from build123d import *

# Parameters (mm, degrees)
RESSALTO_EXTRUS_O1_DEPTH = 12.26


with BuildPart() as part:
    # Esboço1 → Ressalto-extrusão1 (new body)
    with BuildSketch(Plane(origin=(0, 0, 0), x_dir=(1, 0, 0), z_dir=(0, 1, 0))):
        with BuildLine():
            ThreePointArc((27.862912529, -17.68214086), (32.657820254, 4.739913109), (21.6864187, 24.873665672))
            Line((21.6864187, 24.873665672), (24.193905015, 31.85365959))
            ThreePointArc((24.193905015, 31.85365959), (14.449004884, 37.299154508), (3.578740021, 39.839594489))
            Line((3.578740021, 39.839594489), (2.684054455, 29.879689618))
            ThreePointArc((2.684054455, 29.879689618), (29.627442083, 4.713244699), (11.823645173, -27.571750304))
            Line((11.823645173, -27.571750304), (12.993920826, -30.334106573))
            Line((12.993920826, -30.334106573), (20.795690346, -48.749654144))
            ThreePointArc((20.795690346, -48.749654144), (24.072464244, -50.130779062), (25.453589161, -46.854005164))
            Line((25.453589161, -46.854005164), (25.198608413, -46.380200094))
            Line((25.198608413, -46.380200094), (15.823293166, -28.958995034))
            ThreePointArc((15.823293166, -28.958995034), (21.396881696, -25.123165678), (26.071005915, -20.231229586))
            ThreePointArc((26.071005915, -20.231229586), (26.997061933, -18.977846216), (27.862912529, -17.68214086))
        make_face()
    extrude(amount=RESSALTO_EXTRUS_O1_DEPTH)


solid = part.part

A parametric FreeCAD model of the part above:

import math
import FreeCAD as App
import Part
import Sketcher
Q = App.Units.Quantity

doc = App.newDocument("Part")
body = doc.addObject("PartDesign::Body", "Body")

# Sketch on XZ plane
sketch1 = body.newObject("Sketcher::SketchObject", "Sketch")
sketch1.AttachmentSupport = (doc.getObject("XZ_Plane"), [""])
sketch1.MapMode = "FlatFace"
sketch1.addGeometry([
    Part.ArcOfCircle(Part.Circle(App.Vector(0, 0, 0), App.Vector(0, 0, 1), 33), math.radians(-48.916044), math.radians(32.399705)),  # 0
    Part.LineSegment(App.Vector(21.686419, -24.873666, 0), App.Vector(24.193905, -31.85366, 0)),  # 1
    Part.ArcOfCircle(Part.Circle(App.Vector(0, 0, 0), App.Vector(0, 0, 1), 40.000008), math.radians(-84.86697), math.radians(-52.782131)),  # 2
    Part.LineSegment(App.Vector(3.57874, -39.839594, 0), App.Vector(2.684054, -29.87969, 0)),  # 3
    Part.ArcOfCircle(Part.Circle(App.Vector(0, 0, 0), App.Vector(0, 0, 1), 30), math.radians(-84.86697), math.radians(66.788804)),  # 4
    Part.LineSegment(App.Vector(11.823645, 27.57175, 0), App.Vector(12.993921, 30.334107, 0)),  # 5
    Part.LineSegment(App.Vector(12.993921, 30.334107, 0), App.Vector(20.79569, 48.749654, 0)),  # 6
    Part.ArcOfCircle(Part.Circle(App.Vector(23.12464, 47.80183, 0), App.Vector(0, 0, 1), 2.514434), math.radians(-22.145101), math.radians(157.854899)),  # 7
    Part.LineSegment(App.Vector(25.453589, 46.854005, 0), App.Vector(25.198608, 46.3802, 0)),  # 8
    Part.LineSegment(App.Vector(25.198608, 46.3802, 0), App.Vector(15.823293, 28.958995, 0)),  # 9
    Part.ArcOfCircle(Part.Circle(App.Vector(0, 0, 0), App.Vector(0, 0, 1), 33), math.radians(37.81164), math.radians(61.347658)),  # 10
    Part.ArcOfCircle(Part.Circle(App.Vector(0, 0, 0), App.Vector(0, 0, 1), 33), math.radians(32.399705), math.radians(37.81164)),  # 11
], False)
sketch1.addConstraint([
    Sketcher.Constraint("Coincident", 0, 1, 1, 1),
    Sketcher.Constraint("Coincident", 1, 2, 2, 2),
    Sketcher.Constraint("Coincident", 2, 1, 3, 1),
    Sketcher.Constraint("Coincident", 3, 2, 4, 1),
    Sketcher.Constraint("Coincident", 4, 2, 5, 1),
    Sketcher.Constraint("Coincident", 5, 2, 6, 1),
    Sketcher.Constraint("Coincident", 6, 2, 7, 2),
    Sketcher.Constraint("Coincident", 7, 1, 8, 1),
    Sketcher.Constraint("Coincident", 8, 2, 9, 1),
    Sketcher.Constraint("Coincident", 9, 2, 10, 2),
    Sketcher.Constraint("Tangent", 10, 1, 11, 2),
    Sketcher.Constraint("Tangent", 11, 1, 0, 2),
    Sketcher.Constraint("Coincident", 0, 3, -1, 1),
    Sketcher.Constraint("Coincident", 2, 3, -1, 1),
    Sketcher.Constraint("Coincident", 4, 3, -1, 1),
    Sketcher.Constraint("Coincident", 10, 3, -1, 1),
    Sketcher.Constraint("Parallel", 5, 6),
    Sketcher.Constraint("Parallel", 8, 9),
    Sketcher.Constraint("Radius", 0, 33.0),
    Sketcher.Constraint("Radius", 4, 30.0),
    Sketcher.Constraint("Distance", 6, 20.0),
    Sketcher.Constraint("Angle", 5, Q("67.039995 deg")),
    Sketcher.Constraint("Radius", 2, 40.000008),
    Sketcher.Constraint("Radius", 7, 2.514434),
    Sketcher.Constraint("DistanceY", -1, 1, 8, 2, 46.3802),
    Sketcher.Constraint("DistanceX", 6, 2, 7, 1, 4.657899),
    Sketcher.Constraint("Distance", 8, 0.538058),
    Sketcher.Constraint("DistanceX", -1, 1, 7, 3, 23.12464),
    Sketcher.Constraint("DistanceY", -1, 1, 7, 3, 47.80183),
    Sketcher.Constraint("DistanceX", -1, 1, 0, 1, 21.686419),
    Sketcher.Constraint("DistanceY", 1, 2, -1, 1, 31.85366),
    Sketcher.Constraint("DistanceX", -1, 1, 2, 1, 3.57874),
    Sketcher.Constraint("DistanceY", 3, 2, -1, 1, 29.87969),
    Sketcher.Constraint("DistanceX", -1, 1, 5, 2, 12.993921),
    Sketcher.Constraint("DistanceY", -1, 1, 10, 1, 20.23123),
    Sketcher.Constraint("DistanceY", -1, 1, 11, 1, 17.682141),
])
pad1 = body.newObject("PartDesign::Pad", "Pad")
pad1.Profile = sketch1
pad1.Length = 12.26
pad1.Reversed = True

doc.recompute()
